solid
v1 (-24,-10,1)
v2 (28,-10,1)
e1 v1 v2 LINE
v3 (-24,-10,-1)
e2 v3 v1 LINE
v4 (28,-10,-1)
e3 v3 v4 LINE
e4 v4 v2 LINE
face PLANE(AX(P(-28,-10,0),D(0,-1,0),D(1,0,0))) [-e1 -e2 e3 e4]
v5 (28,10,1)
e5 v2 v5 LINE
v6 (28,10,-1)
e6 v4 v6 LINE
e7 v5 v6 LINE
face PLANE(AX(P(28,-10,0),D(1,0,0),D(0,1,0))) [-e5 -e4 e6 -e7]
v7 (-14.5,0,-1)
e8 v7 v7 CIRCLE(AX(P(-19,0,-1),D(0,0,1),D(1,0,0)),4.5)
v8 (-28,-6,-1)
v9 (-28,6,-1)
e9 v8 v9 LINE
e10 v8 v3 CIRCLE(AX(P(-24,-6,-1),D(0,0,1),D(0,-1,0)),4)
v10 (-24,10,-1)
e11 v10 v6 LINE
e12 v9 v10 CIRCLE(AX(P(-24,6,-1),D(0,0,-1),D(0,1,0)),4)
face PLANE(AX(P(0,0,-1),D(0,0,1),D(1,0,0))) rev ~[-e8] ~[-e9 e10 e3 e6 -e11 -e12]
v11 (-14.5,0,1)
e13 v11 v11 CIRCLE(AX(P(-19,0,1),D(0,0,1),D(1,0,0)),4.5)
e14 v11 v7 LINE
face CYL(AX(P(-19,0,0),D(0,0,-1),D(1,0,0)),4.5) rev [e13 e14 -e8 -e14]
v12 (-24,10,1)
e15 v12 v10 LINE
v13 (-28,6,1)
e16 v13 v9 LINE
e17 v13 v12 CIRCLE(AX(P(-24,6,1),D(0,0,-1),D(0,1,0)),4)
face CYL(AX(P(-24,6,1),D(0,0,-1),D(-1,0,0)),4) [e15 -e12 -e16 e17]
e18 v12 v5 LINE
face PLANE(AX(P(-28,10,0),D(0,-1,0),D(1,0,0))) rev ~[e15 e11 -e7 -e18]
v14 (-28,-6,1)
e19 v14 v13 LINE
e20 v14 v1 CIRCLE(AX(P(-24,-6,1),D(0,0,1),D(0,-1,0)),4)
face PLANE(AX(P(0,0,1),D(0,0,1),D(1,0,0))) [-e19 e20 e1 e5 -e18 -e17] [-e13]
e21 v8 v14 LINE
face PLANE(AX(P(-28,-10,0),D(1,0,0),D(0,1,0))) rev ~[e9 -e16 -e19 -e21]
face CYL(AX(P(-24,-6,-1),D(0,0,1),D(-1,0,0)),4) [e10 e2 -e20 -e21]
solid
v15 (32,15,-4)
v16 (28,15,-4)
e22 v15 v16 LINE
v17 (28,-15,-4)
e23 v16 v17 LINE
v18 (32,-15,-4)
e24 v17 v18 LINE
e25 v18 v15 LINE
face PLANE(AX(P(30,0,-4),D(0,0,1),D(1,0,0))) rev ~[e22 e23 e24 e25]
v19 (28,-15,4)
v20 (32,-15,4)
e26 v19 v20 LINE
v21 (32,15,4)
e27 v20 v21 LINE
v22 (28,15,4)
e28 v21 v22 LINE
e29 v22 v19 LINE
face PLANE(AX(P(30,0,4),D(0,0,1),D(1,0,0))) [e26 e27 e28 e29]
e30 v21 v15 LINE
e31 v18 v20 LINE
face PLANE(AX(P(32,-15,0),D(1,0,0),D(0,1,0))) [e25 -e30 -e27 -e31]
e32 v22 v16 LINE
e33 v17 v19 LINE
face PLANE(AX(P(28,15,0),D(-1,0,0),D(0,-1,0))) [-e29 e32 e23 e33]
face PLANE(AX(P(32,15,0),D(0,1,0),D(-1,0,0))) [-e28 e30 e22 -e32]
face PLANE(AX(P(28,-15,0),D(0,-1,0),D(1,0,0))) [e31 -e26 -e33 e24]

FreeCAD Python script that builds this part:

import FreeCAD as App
import Part
import Sketcher
from FreeCAD import Vector


def edges_at(feature, points):
    """Names of the edges that pass closest to the given points."""
    edges = feature.Shape.Edges
    near = lambda p: min(range(len(edges)), key=lambda i: edges[i].distToShape(Part.Vertex(*p))[0])
    return sorted({f"Edge{near(p) + 1}" for p in points})

doc = App.newDocument("Part")
body = doc.addObject("PartDesign::Body", "Body")

# Sketch on XY plane
sketch1 = body.newObject("Sketcher::SketchObject", "Sketch")
sketch1.AttachmentSupport = (doc.getObject("XY_Plane"), [""])
sketch1.MapMode = "FlatFace"
sketch1.addGeometry(Part.LineSegment(Vector(28, 15, 0), Vector(28, -15, 0)), False)
sketch1.addGeometry(Part.LineSegment(Vector(28, -15, 0), Vector(32, -15, 0)), False)
sketch1.addGeometry(Part.LineSegment(Vector(32, -15, 0), Vector(32, 15, 0)), False)
sketch1.addGeometry(Part.LineSegment(Vector(32, 15, 0), Vector(28, 15, 0)), False)
sketch1.addConstraint(Sketcher.Constraint("Coincident", 0, 2, 1, 1))
sketch1.addConstraint(Sketcher.Constraint("Coincident", 1, 2, 2, 1))
sketch1.addConstraint(Sketcher.Constraint("Coincident", 2, 2, 3, 1))
sketch1.addConstraint(Sketcher.Constraint("Coincident", 3, 2, 0, 1))
sketch1.addConstraint(Sketcher.Constraint("Vertical", 0))
sketch1.addConstraint(Sketcher.Constraint("Horizontal", 1))
sketch1.addConstraint(Sketcher.Constraint("Vertical", 2))
sketch1.addConstraint(Sketcher.Constraint("Horizontal", 3))
sketch1.addConstraint(Sketcher.Constraint("DistanceX", 1, 1, 1, 2, 4.0))
sketch1.addConstraint(Sketcher.Constraint("DistanceY", 0, 2, 0, 1, 30.0))
sketch1.addConstraint(Sketcher.Constraint("DistanceX", -1, 1, 0, 2, 28.0))
sketch1.addConstraint(Sketcher.Constraint("DistanceY", 0, 2, -1, 1, 15.0))
pad1 = body.newObject("PartDesign::Pad", "Pad")
pad1.Profile = sketch1
pad1.Length = 8
pad1.Midplane = True
body2 = doc.addObject("PartDesign::Body", "Body001")

# Sketch on XY plane
sketch2 = body2.newObject("Sketcher::SketchObject", "Sketch001")
sketch2.AttachmentSupport = (doc.getObject("XY_Plane001"), [""])
sketch2.MapMode = "FlatFace"
sketch2.addGeometry(Part.LineSegment(Vector(-28, 10, 0), Vector(-28, -10, 0)), False)
sketch2.addGeometry(Part.LineSegment(Vector(-28, -10, 0), Vector(28, -10, 0)), False)
sketch2.addGeometry(Part.LineSegment(Vector(28, -10, 0), Vector(28, 10, 0)), False)
sketch2.addGeometry(Part.LineSegment(Vector(28, 10, 0), Vector(-28, 10, 0)), False)
sketch2.addGeometry(Part.Circle(Vector(-19, 0, 0), Vector(0, 0, 1), 4.5), False)
sketch2.addConstraint(Sketcher.Constraint("Coincident", 0, 2, 1, 1))
sketch2.addConstraint(Sketcher.Constraint("Coincident", 1, 2, 2, 1))
sketch2.addConstraint(Sketcher.Constraint("Coincident", 2, 2, 3, 1))
sketch2.addConstraint(Sketcher.Constraint("Coincident", 3, 2, 0, 1))
sketch2.addConstraint(Sketcher.Constraint("Vertical", 0))
sketch2.addConstraint(Sketcher.Constraint("Horizontal", 1))
sketch2.addConstraint(Sketcher.Constraint("Vertical", 2))
sketch2.addConstraint(Sketcher.Constraint("Horizontal", 3))
sketch2.addConstraint(Sketcher.Constraint("Symmetric", 0, 2, 2, 2, -1, 1))
sketch2.addConstraint(Sketcher.Constraint("PointOnObject", 4, 3, -1))
sketch2.addConstraint(Sketcher.Constraint("Diameter", 4, 9.0))
sketch2.addConstraint(Sketcher.Constraint("DistanceX", 1, 1, 1, 2, 56.0))
sketch2.addConstraint(Sketcher.Constraint("DistanceY", 0, 2, 0, 1, 20.0))
sketch2.addConstraint(Sketcher.Constraint("DistanceX", 4, 3, -1, 1, 19.0))
pad2 = body2.newObject("PartDesign::Pad", "Pad001")
pad2.Profile = sketch2
pad2.Length = 2
pad2.Midplane = True
doc.recompute()

fillet = body2.newObject("PartDesign::Fillet", "Fillet")
fillet.Base = (pad2, edges_at(pad2, [(-28, -10, 0)]))
fillet.Radius = 4
doc.recompute()

fillet2 = body2.newObject("PartDesign::Fillet", "Fillet001")
fillet2.Base = (fillet, edges_at(fillet, [(-28, 10, 0)]))
fillet2.Radius = 4

doc.recompute()
